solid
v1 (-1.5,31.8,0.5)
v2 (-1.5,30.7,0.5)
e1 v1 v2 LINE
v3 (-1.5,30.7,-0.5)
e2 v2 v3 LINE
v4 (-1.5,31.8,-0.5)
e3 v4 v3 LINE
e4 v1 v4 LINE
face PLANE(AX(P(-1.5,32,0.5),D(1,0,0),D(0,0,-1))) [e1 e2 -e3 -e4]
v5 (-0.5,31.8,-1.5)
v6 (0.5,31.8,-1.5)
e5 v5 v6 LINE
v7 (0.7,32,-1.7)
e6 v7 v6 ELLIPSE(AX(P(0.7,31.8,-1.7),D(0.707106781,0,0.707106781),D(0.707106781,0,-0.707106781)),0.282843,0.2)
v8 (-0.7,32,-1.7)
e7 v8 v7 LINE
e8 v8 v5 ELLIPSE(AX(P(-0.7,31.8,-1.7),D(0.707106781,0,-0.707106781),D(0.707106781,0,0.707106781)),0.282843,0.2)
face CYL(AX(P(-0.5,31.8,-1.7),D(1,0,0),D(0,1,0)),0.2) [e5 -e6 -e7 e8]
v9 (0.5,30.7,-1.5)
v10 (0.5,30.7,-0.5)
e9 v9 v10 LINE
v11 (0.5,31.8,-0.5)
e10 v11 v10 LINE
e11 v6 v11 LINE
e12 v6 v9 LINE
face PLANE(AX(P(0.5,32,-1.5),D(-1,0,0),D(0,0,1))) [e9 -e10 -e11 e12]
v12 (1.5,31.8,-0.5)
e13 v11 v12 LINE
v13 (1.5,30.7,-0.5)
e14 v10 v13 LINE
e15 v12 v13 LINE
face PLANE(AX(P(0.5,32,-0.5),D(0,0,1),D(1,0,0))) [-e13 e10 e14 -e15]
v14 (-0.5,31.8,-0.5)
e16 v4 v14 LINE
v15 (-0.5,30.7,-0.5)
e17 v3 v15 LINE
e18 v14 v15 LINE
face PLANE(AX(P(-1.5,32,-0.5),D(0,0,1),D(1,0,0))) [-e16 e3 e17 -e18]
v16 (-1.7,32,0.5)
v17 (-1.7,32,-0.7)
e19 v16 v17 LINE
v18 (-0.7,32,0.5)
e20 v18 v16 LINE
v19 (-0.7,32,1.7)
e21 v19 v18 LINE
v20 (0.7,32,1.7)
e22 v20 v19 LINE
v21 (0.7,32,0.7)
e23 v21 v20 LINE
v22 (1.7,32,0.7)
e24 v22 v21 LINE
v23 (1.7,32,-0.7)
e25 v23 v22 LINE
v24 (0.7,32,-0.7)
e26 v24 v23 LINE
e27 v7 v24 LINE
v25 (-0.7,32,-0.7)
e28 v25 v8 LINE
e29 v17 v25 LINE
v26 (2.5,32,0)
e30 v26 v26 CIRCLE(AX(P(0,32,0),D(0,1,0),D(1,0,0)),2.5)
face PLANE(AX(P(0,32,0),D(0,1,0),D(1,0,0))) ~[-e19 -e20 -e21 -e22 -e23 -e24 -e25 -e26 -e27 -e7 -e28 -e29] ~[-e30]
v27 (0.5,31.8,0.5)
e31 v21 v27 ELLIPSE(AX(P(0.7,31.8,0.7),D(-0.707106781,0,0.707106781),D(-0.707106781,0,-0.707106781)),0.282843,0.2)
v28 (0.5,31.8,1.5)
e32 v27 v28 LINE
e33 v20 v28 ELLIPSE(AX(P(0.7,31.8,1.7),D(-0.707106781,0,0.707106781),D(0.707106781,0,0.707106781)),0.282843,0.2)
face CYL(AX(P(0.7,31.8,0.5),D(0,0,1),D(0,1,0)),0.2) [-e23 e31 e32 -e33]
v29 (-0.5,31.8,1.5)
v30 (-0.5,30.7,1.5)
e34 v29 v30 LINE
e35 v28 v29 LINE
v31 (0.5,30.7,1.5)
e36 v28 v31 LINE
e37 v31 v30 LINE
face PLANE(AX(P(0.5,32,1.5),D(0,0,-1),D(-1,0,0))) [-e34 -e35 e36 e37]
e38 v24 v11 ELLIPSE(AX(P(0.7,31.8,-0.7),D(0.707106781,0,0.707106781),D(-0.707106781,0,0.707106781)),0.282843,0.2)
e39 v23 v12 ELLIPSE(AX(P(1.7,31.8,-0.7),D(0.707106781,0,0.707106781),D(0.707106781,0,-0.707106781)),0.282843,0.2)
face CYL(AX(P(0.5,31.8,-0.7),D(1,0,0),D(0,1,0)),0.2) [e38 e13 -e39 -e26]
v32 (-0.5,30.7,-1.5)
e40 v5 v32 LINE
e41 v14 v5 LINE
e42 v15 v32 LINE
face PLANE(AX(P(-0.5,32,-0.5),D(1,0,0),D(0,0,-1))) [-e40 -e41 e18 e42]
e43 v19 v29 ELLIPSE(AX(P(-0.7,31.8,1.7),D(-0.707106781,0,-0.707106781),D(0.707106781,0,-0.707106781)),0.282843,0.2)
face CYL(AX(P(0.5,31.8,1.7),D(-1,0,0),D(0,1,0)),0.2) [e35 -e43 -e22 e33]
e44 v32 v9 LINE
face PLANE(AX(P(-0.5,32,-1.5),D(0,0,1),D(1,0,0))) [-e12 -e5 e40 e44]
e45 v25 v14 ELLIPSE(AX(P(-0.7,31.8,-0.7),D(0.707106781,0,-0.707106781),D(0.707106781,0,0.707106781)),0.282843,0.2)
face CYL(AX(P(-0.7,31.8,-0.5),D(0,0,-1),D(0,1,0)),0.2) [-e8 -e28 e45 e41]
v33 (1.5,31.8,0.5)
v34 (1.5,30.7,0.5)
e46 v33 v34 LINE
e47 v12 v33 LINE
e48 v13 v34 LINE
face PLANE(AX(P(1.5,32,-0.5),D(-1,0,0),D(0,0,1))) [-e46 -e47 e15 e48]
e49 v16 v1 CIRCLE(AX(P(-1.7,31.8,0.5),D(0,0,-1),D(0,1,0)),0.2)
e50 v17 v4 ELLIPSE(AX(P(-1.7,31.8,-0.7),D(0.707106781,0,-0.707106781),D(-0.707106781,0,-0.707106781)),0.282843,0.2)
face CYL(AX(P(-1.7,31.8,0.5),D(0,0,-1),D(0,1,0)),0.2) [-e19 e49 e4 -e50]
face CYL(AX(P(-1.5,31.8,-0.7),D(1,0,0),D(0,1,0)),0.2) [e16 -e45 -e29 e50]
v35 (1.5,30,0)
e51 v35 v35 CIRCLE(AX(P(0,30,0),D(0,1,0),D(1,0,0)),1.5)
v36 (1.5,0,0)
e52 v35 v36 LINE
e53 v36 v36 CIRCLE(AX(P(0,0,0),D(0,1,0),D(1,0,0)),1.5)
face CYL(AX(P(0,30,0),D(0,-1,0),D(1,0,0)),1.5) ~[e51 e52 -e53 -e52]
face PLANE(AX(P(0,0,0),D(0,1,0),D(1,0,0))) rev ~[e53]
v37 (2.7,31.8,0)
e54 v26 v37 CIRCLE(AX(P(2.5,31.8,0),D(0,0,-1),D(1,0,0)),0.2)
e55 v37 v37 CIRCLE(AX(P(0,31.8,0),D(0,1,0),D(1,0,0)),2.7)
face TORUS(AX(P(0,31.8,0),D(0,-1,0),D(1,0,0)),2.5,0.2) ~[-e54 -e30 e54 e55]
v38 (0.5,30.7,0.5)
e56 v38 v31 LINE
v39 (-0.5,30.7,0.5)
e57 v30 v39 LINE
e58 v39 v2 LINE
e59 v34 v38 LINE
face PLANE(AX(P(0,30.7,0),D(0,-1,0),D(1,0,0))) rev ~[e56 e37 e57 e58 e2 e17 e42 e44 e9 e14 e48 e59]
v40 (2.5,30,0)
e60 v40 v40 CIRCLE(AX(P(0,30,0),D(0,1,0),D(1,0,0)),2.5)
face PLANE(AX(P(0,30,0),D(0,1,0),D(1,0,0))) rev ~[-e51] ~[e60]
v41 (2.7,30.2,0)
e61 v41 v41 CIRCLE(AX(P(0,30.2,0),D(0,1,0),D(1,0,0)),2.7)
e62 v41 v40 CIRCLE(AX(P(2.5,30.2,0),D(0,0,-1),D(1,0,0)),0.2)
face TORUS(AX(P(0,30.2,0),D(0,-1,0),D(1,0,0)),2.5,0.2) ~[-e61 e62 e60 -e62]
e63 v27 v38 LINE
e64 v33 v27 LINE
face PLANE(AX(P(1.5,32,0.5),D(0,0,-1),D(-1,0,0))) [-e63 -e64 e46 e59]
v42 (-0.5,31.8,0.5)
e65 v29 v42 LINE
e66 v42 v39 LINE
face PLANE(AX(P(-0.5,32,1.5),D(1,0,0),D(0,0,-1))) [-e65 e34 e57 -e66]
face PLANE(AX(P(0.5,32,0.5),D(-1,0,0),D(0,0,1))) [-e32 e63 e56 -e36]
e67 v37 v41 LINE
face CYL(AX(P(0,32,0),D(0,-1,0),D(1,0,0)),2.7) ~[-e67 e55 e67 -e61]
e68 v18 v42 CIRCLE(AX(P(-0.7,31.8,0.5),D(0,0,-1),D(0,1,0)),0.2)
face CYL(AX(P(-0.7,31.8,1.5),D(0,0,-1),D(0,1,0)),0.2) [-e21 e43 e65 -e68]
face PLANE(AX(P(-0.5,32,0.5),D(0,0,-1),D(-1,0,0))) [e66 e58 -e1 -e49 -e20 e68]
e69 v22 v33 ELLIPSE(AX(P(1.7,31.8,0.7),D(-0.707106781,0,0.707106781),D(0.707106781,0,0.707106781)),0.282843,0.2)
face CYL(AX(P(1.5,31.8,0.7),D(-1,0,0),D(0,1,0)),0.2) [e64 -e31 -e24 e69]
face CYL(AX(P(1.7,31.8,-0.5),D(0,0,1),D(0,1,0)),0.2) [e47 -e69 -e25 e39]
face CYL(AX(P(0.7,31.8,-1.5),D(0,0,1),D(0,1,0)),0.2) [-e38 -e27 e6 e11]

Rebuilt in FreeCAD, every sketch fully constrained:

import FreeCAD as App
import Part
import Sketcher

V = App.Vector


def edges_at(feature, points):
    """Names of the edges that pass closest to the given points."""
    edges = feature.Shape.Edges
    near = lambda p: min(range(len(edges)), key=lambda i: edges[i].distToShape(Part.Vertex(*p))[0])
    return sorted({f"Edge{near(p) + 1}" for p in points})

doc = App.newDocument("Part")
body = doc.addObject("PartDesign::Body", "Body")

sketch1 = doc.addObject("Sketcher::SketchObject", "Sketch")
body.addObject(sketch1)
sketch1.AttachmentSupport = (doc.XY_Plane, [""])
sketch1.MapMode = "FlatFace"
sketch1.addGeometry([
    Part.LineSegment(V(0, 32, 0), V(0, 0, 0)),
    Part.LineSegment(V(0, 0, 0), V(1.5, 0, 0)),
    Part.LineSegment(V(1.5, 0, 0), V(1.5, 30, 0)),
    Part.LineSegment(V(1.5, 30, 0), V(2.7, 30, 0)),
    Part.LineSegment(V(2.7, 30, 0), V(2.7, 32, 0)),
    Part.LineSegment(V(2.7, 32, 0), V(0, 32, 0)),
], False)
sketch1.addConstraint([
    Sketcher.Constraint("Coincident", 0, 2, 1, 1),
    Sketcher.Constraint("Coincident", 1, 2, 2, 1),
    Sketcher.Constraint("Coincident", 2, 2, 3, 1),
    Sketcher.Constraint("Coincident", 3, 2, 4, 1),
    Sketcher.Constraint("Coincident", 4, 2, 5, 1),
    Sketcher.Constraint("Coincident", 5, 2, 0, 1),
    Sketcher.Constraint("Vertical", 0),
    Sketcher.Constraint("Horizontal", 1),
    Sketcher.Constraint("Vertical", 2),
    Sketcher.Constraint("Horizontal", 3),
    Sketcher.Constraint("Vertical", 4),
    Sketcher.Constraint("Horizontal", 5),
    Sketcher.Constraint("Coincident", 0, 2, -1, 1),
    Sketcher.Constraint("DistanceY", 0, 2, 0, 1, 32.0),
    Sketcher.Constraint("DistanceY", 2, 1, 2, 2, 30.0),
    Sketcher.Constraint("DistanceX", 1, 1, 1, 2, 1.5),
    Sketcher.Constraint("DistanceX", 3, 1, 3, 2, 1.2),
])
revolution = doc.addObject("PartDesign::Revolution", "Revolution")
body.addObject(revolution)
revolution.Profile = sketch1
revolution.ReferenceAxis = (sketch1, ["V_Axis"])
revolution.Angle = 360
doc.recompute()

fillet = doc.addObject("PartDesign::Fillet", "Fillet")
body.addObject(fillet)
fillet.Base = (revolution, edges_at(revolution, [(-2.7, 30, 0), (-2.7, 32, 0)]))
fillet.Radius = 0.2

sketch2 = doc.addObject("Sketcher::SketchObject", "Sketch001")
body.addObject(sketch2)
sketch2.AttachmentSupport = (doc.XZ_Plane, [""])
sketch2.MapMode = "FlatFace"
sketch2.AttachmentOffset = App.Placement(V(0, 0, -32), App.Rotation())
sketch2.addGeometry([
    Part.LineSegment(V(-0.5, 0.5, 0), V(-0.5, 1.5, 0)),
    Part.LineSegment(V(-0.5, 1.5, 0), V(0.5, 1.5, 0)),
    Part.LineSegment(V(0.5, 1.5, 0), V(0.5, 0.5, 0)),
    Part.LineSegment(V(0.5, 0.5, 0), V(1.5, 0.5, 0)),
    Part.LineSegment(V(1.5, 0.5, 0), V(1.5, -0.5, 0)),
    Part.LineSegment(V(1.5, -0.5, 0), V(0.5, -0.5, 0)),
    Part.LineSegment(V(0.5, -0.5, 0), V(0.5, -1.5, 0)),
    Part.LineSegment(V(0.5, -1.5, 0), V(-0.5, -1.5, 0)),
    Part.LineSegment(V(-0.5, -1.5, 0), V(-0.5, -0.5, 0)),
    Part.LineSegment(V(-0.5, -0.5, 0), V(-1.5, -0.5, 0)),
    Part.LineSegment(V(-1.5, -0.5, 0), V(-1.5, 0.5, 0)),
    Part.LineSegment(V(-1.5, 0.5, 0), V(-0.5, 0.5, 0)),
], False)
sketch2.addConstraint([
    Sketcher.Constraint("Coincident", 0, 2, 1, 1),
    Sketcher.Constraint("Coincident", 1, 2, 2, 1),
    Sketcher.Constraint("Coincident", 2, 2, 3, 1),
    Sketcher.Constraint("Coincident", 3, 2, 4, 1),
    Sketcher.Constraint("Coincident", 4, 2, 5, 1),
    Sketcher.Constraint("Coincident", 5, 2, 6, 1),
    Sketcher.Constraint("Coincident", 6, 2, 7, 1),
    Sketcher.Constraint("Coincident", 7, 2, 8, 1),
    Sketcher.Constraint("Coincident", 8, 2, 9, 1),
    Sketcher.Constraint("Coincident", 9, 2, 10, 1),
    Sketcher.Constraint("Coincident", 10, 2, 11, 1),
    Sketcher.Constraint("Coincident", 11, 2, 0, 1),
    Sketcher.Constraint("Vertical", 0),
    Sketcher.Constraint("Horizontal", 1),
    Sketcher.Constraint("Vertical", 2),
    Sketcher.Constraint("Horizontal", 3),
    Sketcher.Constraint("Vertical", 4),
    Sketcher.Constraint("Horizontal", 5),
    Sketcher.Constraint("Vertical", 6),
    Sketcher.Constraint("Horizontal", 7),
    Sketcher.Constraint("Vertical", 8),
    Sketcher.Constraint("Horizontal", 9),
    Sketcher.Constraint("Vertical", 10),
    Sketcher.Constraint("Horizontal", 11),
    Sketcher.Constraint("Symmetric", 0, 2, 6, 2, -1, 1),
    Sketcher.Constraint("Symmetric", 2, 2, 8, 2, -1, 1),
    Sketcher.Constraint("Symmetric", 4, 2, 10, 2, -1, 1),
    Sketcher.Constraint("Symmetric", 5, 2, 8, 2, -2),
    Sketcher.Constraint("Equal", 1, 3),
    Sketcher.Constraint("Equal", 11, 0),
    Sketcher.Constraint("Equal", 2, 4),
    Sketcher.Constraint("DistanceX", 1, 1, 1, 2, 1.0),
])
pocket1 = doc.addObject("PartDesign::Pocket", "Pocket")
body.addObject(pocket1)
pocket1.Profile = sketch2
pocket1.Length = 1.3
pocket1.Reversed = True
doc.recompute()

fillet2 = doc.addObject("PartDesign::Fillet", "Fillet001")
body.addObject(fillet2)
fillet2.Base = (pocket1, edges_at(pocket1, [
    (0, 32, -1.5),
    (0.5, 32, -1),
    (1, 32, -0.5),
    (1.5, 32, 0),
    (1, 32, 0.5),
    (0.5, 32, 1),
    (-0.5, 32, 1),
    (0, 32, 1.5),
    (-1.5, 32, 0),
    (-1, 32, -0.5),
    (-0.5, 32, -1),
]))
fillet2.Radius = 0.2

doc.recompute()
